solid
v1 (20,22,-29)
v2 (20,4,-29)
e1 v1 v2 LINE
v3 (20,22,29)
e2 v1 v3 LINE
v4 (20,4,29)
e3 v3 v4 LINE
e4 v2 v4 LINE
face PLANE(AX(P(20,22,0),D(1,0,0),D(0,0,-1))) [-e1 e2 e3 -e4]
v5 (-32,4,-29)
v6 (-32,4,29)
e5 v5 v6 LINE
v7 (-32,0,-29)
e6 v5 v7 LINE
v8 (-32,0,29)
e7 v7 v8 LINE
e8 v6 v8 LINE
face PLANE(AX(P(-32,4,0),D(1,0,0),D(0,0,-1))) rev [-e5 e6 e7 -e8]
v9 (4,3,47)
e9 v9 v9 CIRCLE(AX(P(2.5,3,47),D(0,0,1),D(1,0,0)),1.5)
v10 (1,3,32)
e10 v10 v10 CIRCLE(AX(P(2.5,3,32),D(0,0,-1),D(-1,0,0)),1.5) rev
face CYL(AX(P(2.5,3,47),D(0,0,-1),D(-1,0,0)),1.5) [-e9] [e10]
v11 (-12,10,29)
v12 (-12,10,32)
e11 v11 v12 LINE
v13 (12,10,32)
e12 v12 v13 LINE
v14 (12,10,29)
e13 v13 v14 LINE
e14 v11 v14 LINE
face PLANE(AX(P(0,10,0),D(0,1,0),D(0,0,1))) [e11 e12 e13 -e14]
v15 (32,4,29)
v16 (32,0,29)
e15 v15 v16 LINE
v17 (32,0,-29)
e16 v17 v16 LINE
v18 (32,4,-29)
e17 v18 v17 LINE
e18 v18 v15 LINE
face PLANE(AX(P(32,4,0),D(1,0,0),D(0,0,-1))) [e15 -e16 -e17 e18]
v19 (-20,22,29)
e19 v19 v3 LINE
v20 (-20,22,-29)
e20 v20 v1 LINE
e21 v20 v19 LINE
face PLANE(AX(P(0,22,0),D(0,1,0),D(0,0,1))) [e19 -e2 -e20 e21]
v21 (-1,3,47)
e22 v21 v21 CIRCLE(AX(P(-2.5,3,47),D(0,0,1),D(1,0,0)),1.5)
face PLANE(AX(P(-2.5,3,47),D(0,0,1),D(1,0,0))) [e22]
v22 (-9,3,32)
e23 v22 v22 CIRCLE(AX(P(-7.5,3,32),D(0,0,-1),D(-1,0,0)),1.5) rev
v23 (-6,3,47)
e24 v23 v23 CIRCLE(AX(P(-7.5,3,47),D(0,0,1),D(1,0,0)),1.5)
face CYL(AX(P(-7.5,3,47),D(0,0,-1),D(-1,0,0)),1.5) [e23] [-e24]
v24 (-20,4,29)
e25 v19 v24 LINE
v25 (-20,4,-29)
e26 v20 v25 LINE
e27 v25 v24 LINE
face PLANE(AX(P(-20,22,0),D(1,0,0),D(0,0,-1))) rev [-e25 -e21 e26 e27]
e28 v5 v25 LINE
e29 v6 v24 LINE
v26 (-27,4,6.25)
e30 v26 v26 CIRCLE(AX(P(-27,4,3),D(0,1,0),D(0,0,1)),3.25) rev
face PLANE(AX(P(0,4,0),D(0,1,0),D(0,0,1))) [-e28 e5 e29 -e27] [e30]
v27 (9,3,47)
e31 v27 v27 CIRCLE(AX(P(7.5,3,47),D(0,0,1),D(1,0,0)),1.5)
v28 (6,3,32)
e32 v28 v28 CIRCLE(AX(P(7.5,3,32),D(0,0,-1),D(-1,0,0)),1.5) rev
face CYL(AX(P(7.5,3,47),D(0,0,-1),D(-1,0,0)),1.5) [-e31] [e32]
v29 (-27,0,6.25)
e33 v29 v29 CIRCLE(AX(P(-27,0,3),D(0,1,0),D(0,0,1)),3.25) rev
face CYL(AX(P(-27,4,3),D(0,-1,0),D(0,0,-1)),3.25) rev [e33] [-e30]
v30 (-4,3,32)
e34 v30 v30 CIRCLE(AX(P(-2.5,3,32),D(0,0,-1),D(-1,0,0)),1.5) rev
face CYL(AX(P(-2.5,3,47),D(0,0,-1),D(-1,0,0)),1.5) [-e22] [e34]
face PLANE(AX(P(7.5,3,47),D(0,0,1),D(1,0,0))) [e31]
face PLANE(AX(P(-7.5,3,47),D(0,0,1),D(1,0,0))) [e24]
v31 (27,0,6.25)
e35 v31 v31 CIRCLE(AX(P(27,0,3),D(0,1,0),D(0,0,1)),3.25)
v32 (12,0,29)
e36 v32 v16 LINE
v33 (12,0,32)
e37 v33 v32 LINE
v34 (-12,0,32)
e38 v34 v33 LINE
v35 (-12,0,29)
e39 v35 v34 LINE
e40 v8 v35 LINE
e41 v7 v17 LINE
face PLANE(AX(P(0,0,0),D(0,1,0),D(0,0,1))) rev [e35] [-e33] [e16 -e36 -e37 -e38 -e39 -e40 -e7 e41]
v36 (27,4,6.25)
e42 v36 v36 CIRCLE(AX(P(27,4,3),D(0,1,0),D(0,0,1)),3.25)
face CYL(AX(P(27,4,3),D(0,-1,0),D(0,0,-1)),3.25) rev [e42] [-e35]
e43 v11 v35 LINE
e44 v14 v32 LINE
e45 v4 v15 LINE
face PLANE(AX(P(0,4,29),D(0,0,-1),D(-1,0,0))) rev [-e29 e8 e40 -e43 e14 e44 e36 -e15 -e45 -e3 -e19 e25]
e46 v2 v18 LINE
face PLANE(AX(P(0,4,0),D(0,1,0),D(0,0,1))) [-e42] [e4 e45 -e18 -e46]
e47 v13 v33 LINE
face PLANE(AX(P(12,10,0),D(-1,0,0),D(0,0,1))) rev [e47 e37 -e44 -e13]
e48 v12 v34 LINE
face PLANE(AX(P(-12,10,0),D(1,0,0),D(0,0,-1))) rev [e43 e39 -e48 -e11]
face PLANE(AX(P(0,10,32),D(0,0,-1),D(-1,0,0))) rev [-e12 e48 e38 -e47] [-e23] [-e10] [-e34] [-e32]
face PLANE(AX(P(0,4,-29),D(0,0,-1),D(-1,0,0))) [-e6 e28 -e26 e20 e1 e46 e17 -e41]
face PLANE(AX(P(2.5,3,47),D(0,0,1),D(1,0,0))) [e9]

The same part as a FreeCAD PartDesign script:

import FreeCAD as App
import Part
import Sketcher
from FreeCAD import Vector


def add_polygon(sketch, points):
    """Adds a closed chain of lines whose ends are joined by coincident constraints."""
    first, n = sketch.GeometryCount, len(points)
    for a, b in zip(points, points[1:] + points[:1]):
        sketch.addGeometry(Part.LineSegment(App.Vector(*a, 0), App.Vector(*b, 0)), False)
    for i in range(n):
        sketch.addConstraint(Sketcher.Constraint("Coincident", first + i, 2, first + (i + 1) % n, 1))

doc = App.newDocument("Part")
body = doc.addObject("PartDesign::Body", "Body")

# Sketch on XZ plane
sketch1 = body.newObject("Sketcher::SketchObject", "Sketch")
sketch1.AttachmentSupport = (doc.getObject("XZ_Plane"), [""])
sketch1.MapMode = "FlatFace"
add_polygon(sketch1, [(-32, -29), (-32, 29), (-20, 29), (-20, -29)])  # lines 0-3
sketch1.addGeometry(Part.Circle(Vector(-27, 3, 0), Vector(0, 0, 1), 3.2), False)  # 4
sketch1.addConstraint(Sketcher.Constraint("Vertical", 0))
sketch1.addConstraint(Sketcher.Constraint("Horizontal", 1))
sketch1.addConstraint(Sketcher.Constraint("Vertical", 2))
sketch1.addConstraint(Sketcher.Constraint("Horizontal", 3))
sketch1.addConstraint(Sketcher.Constraint("Diameter", 4, 6.5))
sketch1.addConstraint(Sketcher.Constraint("DistanceX", 1, 1, 1, 2, 12.0))
sketch1.addConstraint(Sketcher.Constraint("DistanceY", 0, 1, 0, 2, 58.0))
sketch1.addConstraint(Sketcher.Constraint("DistanceX", 4, 3, -1, 1, 27.0))
sketch1.addConstraint(Sketcher.Constraint("DistanceY", -1, 1, 4, 3, 3.0))
sketch1.addConstraint(Sketcher.Constraint("DistanceX", 0, 2, -1, 1, 32.0))
sketch1.addConstraint(Sketcher.Constraint("DistanceY", -1, 1, 0, 2, 29.0))
pad1 = body.newObject("PartDesign::Pad", "Pad")
pad1.Profile = sketch1
pad1.Length = 4
pad1.Reversed = True
body2 = doc.addObject("PartDesign::Body", "Body001")

# Sketch on XZ plane
sketch2 = body2.newObject("Sketcher::SketchObject", "Sketch001")
sketch2.AttachmentSupport = (doc.getObject("XZ_Plane001"), [""])
sketch2.MapMode = "FlatFace"
add_polygon(sketch2, [(20, -29), (20, 29), (32, 29), (32, -29)])  # lines 0-3
sketch2.addGeometry(Part.Circle(Vector(27, 3, 0), Vector(0, 0, 1), 3.2), False)  # 4
sketch2.addConstraint(Sketcher.Constraint("Vertical", 0))
sketch2.addConstraint(Sketcher.Constraint("Horizontal", 1))
sketch2.addConstraint(Sketcher.Constraint("Vertical", 2))
sketch2.addConstraint(Sketcher.Constraint("Horizontal", 3))
sketch2.addConstraint(Sketcher.Constraint("Diameter", 4, 6.5))
sketch2.addConstraint(Sketcher.Constraint("DistanceX", 1, 1, 1, 2, 12.0))
sketch2.addConstraint(Sketcher.Constraint("DistanceY", 0, 1, 0, 2, 58.0))
sketch2.addConstraint(Sketcher.Constraint("DistanceX", -1, 1, 4, 3, 27.0))
sketch2.addConstraint(Sketcher.Constraint("DistanceY", -1, 1, 4, 3, 3.0))
sketch2.addConstraint(Sketcher.Constraint("DistanceX", -1, 1, 0, 2, 20.0))
sketch2.addConstraint(Sketcher.Constraint("DistanceY", -1, 1, 0, 2, 29.0))
pad2 = body2.newObject("PartDesign::Pad", "Pad001")
pad2.Profile = sketch2
pad2.Length = 4
pad2.Reversed = True
body.AllowCompound = True
doc.recompute()

boolean = body.newObject("PartDesign::Boolean", "Boolean")
boolean.Type = "Fuse"
boolean.addObjects([body2])

# Sketch on XZ plane
sketch3 = body.newObject("Sketcher::SketchObject", "Sketch002")
sketch3.AttachmentSupport = (doc.getObject("XZ_Plane"), [""])
sketch3.MapMode = "FlatFace"
add_polygon(sketch3, [(20, -29), (-20, -29), (-20, 29), (20, 29)])  # lines 0-3
sketch3.addConstraint(Sketcher.Constraint("Horizontal", 0))
sketch3.addConstraint(Sketcher.Constraint("Vertical", 1))
sketch3.addConstraint(Sketcher.Constraint("Horizontal", 2))
sketch3.addConstraint(Sketcher.Constraint("Vertical", 3))
sketch3.addConstraint(Sketcher.Constraint("Symmetric", 0, 2, 2, 2, -1, 1))
sketch3.addConstraint(Sketcher.Constraint("DistanceX", 0, 2, 0, 1, 40.0))
sketch3.addConstraint(Sketcher.Constraint("DistanceY", 1, 1, 1, 2, 58.0))
pad3 = body.newObject("PartDesign::Pad", "Pad002")
pad3.Profile = sketch3
pad3.Length = 22
pad3.Reversed = True

# Sketch on XZ plane
sketch4 = body.newObject("Sketcher::SketchObject", "Sketch003")
sketch4.AttachmentSupport = (doc.getObject("XZ_Plane"), [""])
sketch4.MapMode = "FlatFace"
add_polygon(sketch4, [(-12, 29), (-12, 32), (12, 32), (12, 29)])  # lines 0-3
sketch4.addConstraint(Sketcher.Constraint("Vertical", 0))
sketch4.addConstraint(Sketcher.Constraint("Horizontal", 1))
sketch4.addConstraint(Sketcher.Constraint("Vertical", 2))
sketch4.addConstraint(Sketcher.Constraint("Horizontal", 3))
sketch4.addConstraint(Sketcher.Constraint("DistanceX", 1, 1, 1, 2, 24.0))
sketch4.addConstraint(Sketcher.Constraint("DistanceY", 0, 1, 0, 2, 3.0))
sketch4.addConstraint(Sketcher.Constraint("DistanceX", 0, 2, -1, 1, 12.0))
sketch4.addConstraint(Sketcher.Constraint("DistanceY", -1, 1, 0, 2, 32.0))
pad4 = body.newObject("PartDesign::Pad", "Pad003")
pad4.Profile = sketch4
pad4.Length = 10
pad4.Reversed = True

# Sketch on XY plane
sketch5 = body.newObject("Sketcher::SketchObject", "Sketch004")
sketch5.AttachmentSupport = (doc.getObject("XY_Plane"), [""])
sketch5.MapMode = "FlatFace"
sketch5.AttachmentOffset = App.Placement(Vector(0, 0, 32), App.Rotation())
sketch5.addGeometry(Part.Circle(Vector(-7.5, 3, 0), Vector(0, 0, 1), 1.5), False)
sketch5.addGeometry(Part.Circle(Vector(-2.5, 3, 0), Vector(0, 0, 1), 1.5), False)
sketch5.addGeometry(Part.Circle(Vector(2.5, 3, 0), Vector(0, 0, 1), 1.5), False)
sketch5.addGeometry(Part.Circle(Vector(7.5, 3, 0), Vector(0, 0, 1), 1.5), False)
sketch5.addConstraint(Sketcher.Constraint("Equal", 0, 1))
sketch5.addConstraint(Sketcher.Constraint("Equal", 1, 2))
sketch5.addConstraint(Sketcher.Constraint("Equal", 2, 3))
sketch5.addConstraint(Sketcher.Constraint("Symmetric", 1, 3, 2, 3, -2))
sketch5.addConstraint(Sketcher.Constraint("Symmetric", 0, 3, 3, 3, -2))
sketch5.addConstraint(Sketcher.Constraint("Horizontal", 0, 3, 1, 3))
sketch5.addConstraint(Sketcher.Constraint("Diameter", 0, 3.0))
sketch5.addConstraint(Sketcher.Constraint("DistanceY", -1, 1, 0, 3, 3.0))
sketch5.addConstraint(Sketcher.Constraint("DistanceX", 0, 3, 1, 3, 5.0))
sketch5.addConstraint(Sketcher.Constraint("DistanceX", 1, 3, 2, 3, 5.0))
pad5 = body.newObject("PartDesign::Pad", "Pad004")
pad5.Profile = sketch5
pad5.Length = 15

doc.recompute()
